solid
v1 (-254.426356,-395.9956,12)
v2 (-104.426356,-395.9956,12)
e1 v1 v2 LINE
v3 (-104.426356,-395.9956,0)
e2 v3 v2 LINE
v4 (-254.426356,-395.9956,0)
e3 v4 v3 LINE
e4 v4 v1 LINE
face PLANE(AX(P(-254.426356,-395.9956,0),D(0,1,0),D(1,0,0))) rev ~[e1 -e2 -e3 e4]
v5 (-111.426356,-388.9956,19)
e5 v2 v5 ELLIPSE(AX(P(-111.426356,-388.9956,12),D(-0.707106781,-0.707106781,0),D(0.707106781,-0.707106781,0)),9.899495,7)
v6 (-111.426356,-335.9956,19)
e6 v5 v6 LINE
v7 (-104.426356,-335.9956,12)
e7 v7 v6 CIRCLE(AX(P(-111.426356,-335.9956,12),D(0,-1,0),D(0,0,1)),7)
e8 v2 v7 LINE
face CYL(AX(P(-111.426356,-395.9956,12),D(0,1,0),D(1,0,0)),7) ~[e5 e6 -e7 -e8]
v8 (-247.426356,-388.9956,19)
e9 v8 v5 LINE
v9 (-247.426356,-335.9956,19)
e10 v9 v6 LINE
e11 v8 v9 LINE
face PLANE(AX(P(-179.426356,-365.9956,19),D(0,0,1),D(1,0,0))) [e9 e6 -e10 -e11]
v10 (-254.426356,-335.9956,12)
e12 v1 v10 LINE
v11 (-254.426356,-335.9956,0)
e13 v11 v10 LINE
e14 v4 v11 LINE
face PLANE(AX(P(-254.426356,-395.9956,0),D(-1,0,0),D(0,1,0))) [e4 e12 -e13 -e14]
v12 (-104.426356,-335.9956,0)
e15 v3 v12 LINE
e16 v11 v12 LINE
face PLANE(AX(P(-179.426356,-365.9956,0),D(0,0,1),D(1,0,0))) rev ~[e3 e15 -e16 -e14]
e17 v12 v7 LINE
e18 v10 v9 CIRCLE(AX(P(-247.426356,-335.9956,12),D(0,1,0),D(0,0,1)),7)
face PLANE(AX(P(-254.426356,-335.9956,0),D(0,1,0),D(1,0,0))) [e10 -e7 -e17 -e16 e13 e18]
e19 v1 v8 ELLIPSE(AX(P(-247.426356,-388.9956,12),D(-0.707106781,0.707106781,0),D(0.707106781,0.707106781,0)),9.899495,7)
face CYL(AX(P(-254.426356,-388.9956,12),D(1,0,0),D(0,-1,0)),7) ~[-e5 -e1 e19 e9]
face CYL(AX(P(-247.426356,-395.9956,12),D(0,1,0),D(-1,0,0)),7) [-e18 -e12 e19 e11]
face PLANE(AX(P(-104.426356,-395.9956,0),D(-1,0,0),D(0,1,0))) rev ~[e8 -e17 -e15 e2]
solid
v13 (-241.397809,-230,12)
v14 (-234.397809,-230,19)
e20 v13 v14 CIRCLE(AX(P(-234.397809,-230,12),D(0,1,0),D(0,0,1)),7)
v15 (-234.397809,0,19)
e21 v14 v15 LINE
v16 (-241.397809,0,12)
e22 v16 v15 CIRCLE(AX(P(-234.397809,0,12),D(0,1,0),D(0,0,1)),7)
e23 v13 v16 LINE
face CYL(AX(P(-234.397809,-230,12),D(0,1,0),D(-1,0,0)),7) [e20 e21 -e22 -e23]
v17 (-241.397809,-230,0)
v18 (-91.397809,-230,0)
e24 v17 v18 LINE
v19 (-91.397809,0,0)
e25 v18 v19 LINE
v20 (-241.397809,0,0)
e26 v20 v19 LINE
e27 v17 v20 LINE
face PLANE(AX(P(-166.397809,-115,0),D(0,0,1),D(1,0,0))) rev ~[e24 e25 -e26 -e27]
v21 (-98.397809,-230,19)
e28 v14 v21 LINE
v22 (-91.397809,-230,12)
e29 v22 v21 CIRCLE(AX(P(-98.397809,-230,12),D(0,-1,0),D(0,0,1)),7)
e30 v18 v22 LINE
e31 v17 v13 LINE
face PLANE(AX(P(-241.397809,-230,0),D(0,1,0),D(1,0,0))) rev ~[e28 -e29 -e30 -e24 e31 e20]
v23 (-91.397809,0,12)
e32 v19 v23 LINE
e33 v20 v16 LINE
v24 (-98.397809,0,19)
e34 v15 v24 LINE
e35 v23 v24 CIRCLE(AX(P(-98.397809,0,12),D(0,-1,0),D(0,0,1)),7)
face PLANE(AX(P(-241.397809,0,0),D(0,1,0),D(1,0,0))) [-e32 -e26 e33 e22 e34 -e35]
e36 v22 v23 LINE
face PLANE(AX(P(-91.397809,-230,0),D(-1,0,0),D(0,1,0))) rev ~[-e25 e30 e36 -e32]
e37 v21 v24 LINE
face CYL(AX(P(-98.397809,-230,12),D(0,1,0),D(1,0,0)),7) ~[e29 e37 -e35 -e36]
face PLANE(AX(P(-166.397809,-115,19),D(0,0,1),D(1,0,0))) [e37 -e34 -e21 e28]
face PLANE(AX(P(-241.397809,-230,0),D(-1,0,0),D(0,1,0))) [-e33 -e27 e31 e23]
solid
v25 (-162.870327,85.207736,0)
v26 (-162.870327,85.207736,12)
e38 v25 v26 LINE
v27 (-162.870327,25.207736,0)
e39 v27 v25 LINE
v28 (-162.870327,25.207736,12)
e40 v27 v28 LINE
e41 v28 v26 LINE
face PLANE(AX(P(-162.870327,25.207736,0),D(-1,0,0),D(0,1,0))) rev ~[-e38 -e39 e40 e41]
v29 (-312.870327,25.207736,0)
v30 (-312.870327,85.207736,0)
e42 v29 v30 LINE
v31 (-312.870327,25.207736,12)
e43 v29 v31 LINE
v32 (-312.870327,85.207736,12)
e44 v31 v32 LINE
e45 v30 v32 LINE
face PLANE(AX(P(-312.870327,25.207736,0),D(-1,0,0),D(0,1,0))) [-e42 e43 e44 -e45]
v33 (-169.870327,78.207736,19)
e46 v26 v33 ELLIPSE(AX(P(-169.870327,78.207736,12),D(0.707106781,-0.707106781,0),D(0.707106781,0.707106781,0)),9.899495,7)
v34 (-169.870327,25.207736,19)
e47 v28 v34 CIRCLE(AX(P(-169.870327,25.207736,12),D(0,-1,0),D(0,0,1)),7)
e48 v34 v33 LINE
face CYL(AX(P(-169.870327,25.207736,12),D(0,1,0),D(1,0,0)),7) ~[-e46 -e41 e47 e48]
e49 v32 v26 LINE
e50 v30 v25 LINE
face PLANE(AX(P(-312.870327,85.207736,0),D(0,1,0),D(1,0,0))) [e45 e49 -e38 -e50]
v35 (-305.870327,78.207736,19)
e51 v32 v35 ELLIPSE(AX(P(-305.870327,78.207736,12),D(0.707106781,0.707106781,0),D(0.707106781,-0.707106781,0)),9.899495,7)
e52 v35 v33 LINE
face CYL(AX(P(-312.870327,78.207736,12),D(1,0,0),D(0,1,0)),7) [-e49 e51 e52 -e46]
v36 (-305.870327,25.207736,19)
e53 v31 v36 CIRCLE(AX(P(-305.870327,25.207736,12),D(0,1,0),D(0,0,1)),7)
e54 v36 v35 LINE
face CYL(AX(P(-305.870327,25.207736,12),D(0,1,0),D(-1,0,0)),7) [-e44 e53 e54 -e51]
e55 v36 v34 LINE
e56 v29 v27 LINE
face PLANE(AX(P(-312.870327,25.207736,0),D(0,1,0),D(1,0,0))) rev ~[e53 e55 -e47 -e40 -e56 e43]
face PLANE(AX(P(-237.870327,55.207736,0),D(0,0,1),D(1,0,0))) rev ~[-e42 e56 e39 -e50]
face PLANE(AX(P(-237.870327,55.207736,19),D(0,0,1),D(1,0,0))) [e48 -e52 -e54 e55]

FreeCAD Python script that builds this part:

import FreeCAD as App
import Part
import Sketcher

V = App.Vector


def edges_at(feature, points):
    """Names of the edges that pass closest to the given points."""
    edges = feature.Shape.Edges
    near = lambda p: min(range(len(edges)), key=lambda i: edges[i].distToShape(Part.Vertex(*p))[0])
    return sorted({f"Edge{near(p) + 1}" for p in points})

doc = App.newDocument("Part")
body = doc.addObject("PartDesign::Body", "Body")

sketch1 = doc.addObject("Sketcher::SketchObject", "Sketch")
body.addObject(sketch1)
sketch1.AttachmentSupport = (doc.XY_Plane, [""])
sketch1.MapMode = "FlatFace"
sketch1.addGeometry(Part.LineSegment(V(-313, 85, 0), V(-313, 25, 0)), False)
sketch1.addGeometry(Part.LineSegment(V(-313, 25, 0), V(-163, 25, 0)), False)
sketch1.addGeometry(Part.LineSegment(V(-163, 25, 0), V(-163, 85, 0)), False)
sketch1.addGeometry(Part.LineSegment(V(-163, 85, 0), V(-313, 85, 0)), False)
sketch1.addConstraint(Sketcher.Constraint("Coincident", 0, 2, 1, 1))
sketch1.addConstraint(Sketcher.Constraint("Coincident", 1, 2, 2, 1))
sketch1.addConstraint(Sketcher.Constraint("Coincident", 2, 2, 3, 1))
sketch1.addConstraint(Sketcher.Constraint("Coincident", 3, 2, 0, 1))
sketch1.addConstraint(Sketcher.Constraint("Vertical", 0))
sketch1.addConstraint(Sketcher.Constraint("Horizontal", 1))
sketch1.addConstraint(Sketcher.Constraint("Vertical", 2))
sketch1.addConstraint(Sketcher.Constraint("Horizontal", 3))
sketch1.addConstraint(Sketcher.Constraint("DistanceX", 1, 1, 1, 2, 150.0))
sketch1.addConstraint(Sketcher.Constraint("DistanceY", 0, 2, 0, 1, 60.0))
sketch1.addConstraint(Sketcher.Constraint("DistanceX", 0, 2, -1, 1, 312.870327))
sketch1.addConstraint(Sketcher.Constraint("DistanceY", -1, 1, 0, 2, 25.207736))
pad1 = doc.addObject("PartDesign::Pad", "Pad")
body.addObject(pad1)
pad1.Profile = sketch1
pad1.Length = 19
doc.recompute()

fillet = doc.addObject("PartDesign::Fillet", "Fillet")
body.addObject(fillet)
fillet.Base = (pad1, edges_at(pad1, [(-162.87, 55.208, 19), (-237.87, 85.208, 19), (-312.87, 55.208, 19)]))
fillet.Radius = 7
body2 = doc.addObject("PartDesign::Body", "Body001")

sketch2 = doc.addObject("Sketcher::SketchObject", "Sketch001")
body2.addObject(sketch2)
sketch2.AttachmentSupport = (doc.getObject("XY_Plane001"), [""])
sketch2.MapMode = "FlatFace"
sketch2.addGeometry(Part.LineSegment(V(-241, 0, 0), V(-241, -230, 0)), False)
sketch2.addGeometry(Part.LineSegment(V(-241, -230, 0), V(-91, -230, 0)), False)
sketch2.addGeometry(Part.LineSegment(V(-91, -230, 0), V(-91, 0, 0)), False)
sketch2.addGeometry(Part.LineSegment(V(-91, 0, 0), V(-241, 0, 0)), False)
sketch2.addConstraint(Sketcher.Constraint("Coincident", 0, 2, 1, 1))
sketch2.addConstraint(Sketcher.Constraint("Coincident", 1, 2, 2, 1))
sketch2.addConstraint(Sketcher.Constraint("Coincident", 2, 2, 3, 1))
sketch2.addConstraint(Sketcher.Constraint("Coincident", 3, 2, 0, 1))
sketch2.addConstraint(Sketcher.Constraint("Vertical", 0))
sketch2.addConstraint(Sketcher.Constraint("Horizontal", 1))
sketch2.addConstraint(Sketcher.Constraint("Vertical", 2))
sketch2.addConstraint(Sketcher.Constraint("Horizontal", 3))
sketch2.addConstraint(Sketcher.Constraint("PointOnObject", 2, 2, -1))
sketch2.addConstraint(Sketcher.Constraint("DistanceX", 1, 1, 1, 2, 150.0))
sketch2.addConstraint(Sketcher.Constraint("DistanceY", 0, 2, 0, 1, 230.0))
sketch2.addConstraint(Sketcher.Constraint("DistanceX", 0, 2, -1, 1, 241.397809))
pad2 = doc.addObject("PartDesign::Pad", "Pad001")
body2.addObject(pad2)
pad2.Profile = sketch2
pad2.Length = 19
doc.recompute()

fillet2 = doc.addObject("PartDesign::Fillet", "Fillet001")
body2.addObject(fillet2)
fillet2.Base = (pad2, edges_at(pad2, [(-91.398, -115, 19), (-241.398, -115, 19)]))
fillet2.Radius = 7
body3 = doc.addObject("PartDesign::Body", "Body002")

sketch3 = doc.addObject("Sketcher::SketchObject", "Sketch002")
body3.addObject(sketch3)
sketch3.AttachmentSupport = (doc.getObject("XY_Plane002"), [""])
sketch3.MapMode = "FlatFace"
sketch3.addGeometry(Part.LineSegment(V(-254, -336, 0), V(-254, -396, 0)), False)
sketch3.addGeometry(Part.LineSegment(V(-254, -396, 0), V(-104, -396, 0)), False)
sketch3.addGeometry(Part.LineSegment(V(-104, -396, 0), V(-104, -336, 0)), False)
sketch3.addGeometry(Part.LineSegment(V(-104, -336, 0), V(-254, -336, 0)), False)
sketch3.addConstraint(Sketcher.Constraint("Coincident", 0, 2, 1, 1))
sketch3.addConstraint(Sketcher.Constraint("Coincident", 1, 2, 2, 1))
sketch3.addConstraint(Sketcher.Constraint("Coincident", 2, 2, 3, 1))
sketch3.addConstraint(Sketcher.Constraint("Coincident", 3, 2, 0, 1))
sketch3.addConstraint(Sketcher.Constraint("Vertical", 0))
sketch3.addConstraint(Sketcher.Constraint("Horizontal", 1))
sketch3.addConstraint(Sketcher.Constraint("Vertical", 2))
sketch3.addConstraint(Sketcher.Constraint("Horizontal", 3))
sketch3.addConstraint(Sketcher.Constraint("DistanceX", 1, 1, 1, 2, 150.0))
sketch3.addConstraint(Sketcher.Constraint("DistanceY", 0, 2, 0, 1, 60.0))
sketch3.addConstraint(Sketcher.Constraint("DistanceY", 0, 2, -1, 1, 395.9956))
sketch3.addConstraint(Sketcher.Constraint("DistanceX", 0, 2, -1, 1, 254.426356))
pad3 = doc.addObject("PartDesign::Pad", "Pad002")
body3.addObject(pad3)
pad3.Profile = sketch3
pad3.Length = 19
doc.recompute()

fillet3 = doc.addObject("PartDesign::Fillet", "Fillet002")
body3.addObject(fillet3)
fillet3.Base = (pad3, edges_at(pad3, [(-179.426, -395.996, 19), (-104.426, -365.996, 19), (-254.426, -365.996, 19)]))
fillet3.Radius = 7

doc.recompute()
